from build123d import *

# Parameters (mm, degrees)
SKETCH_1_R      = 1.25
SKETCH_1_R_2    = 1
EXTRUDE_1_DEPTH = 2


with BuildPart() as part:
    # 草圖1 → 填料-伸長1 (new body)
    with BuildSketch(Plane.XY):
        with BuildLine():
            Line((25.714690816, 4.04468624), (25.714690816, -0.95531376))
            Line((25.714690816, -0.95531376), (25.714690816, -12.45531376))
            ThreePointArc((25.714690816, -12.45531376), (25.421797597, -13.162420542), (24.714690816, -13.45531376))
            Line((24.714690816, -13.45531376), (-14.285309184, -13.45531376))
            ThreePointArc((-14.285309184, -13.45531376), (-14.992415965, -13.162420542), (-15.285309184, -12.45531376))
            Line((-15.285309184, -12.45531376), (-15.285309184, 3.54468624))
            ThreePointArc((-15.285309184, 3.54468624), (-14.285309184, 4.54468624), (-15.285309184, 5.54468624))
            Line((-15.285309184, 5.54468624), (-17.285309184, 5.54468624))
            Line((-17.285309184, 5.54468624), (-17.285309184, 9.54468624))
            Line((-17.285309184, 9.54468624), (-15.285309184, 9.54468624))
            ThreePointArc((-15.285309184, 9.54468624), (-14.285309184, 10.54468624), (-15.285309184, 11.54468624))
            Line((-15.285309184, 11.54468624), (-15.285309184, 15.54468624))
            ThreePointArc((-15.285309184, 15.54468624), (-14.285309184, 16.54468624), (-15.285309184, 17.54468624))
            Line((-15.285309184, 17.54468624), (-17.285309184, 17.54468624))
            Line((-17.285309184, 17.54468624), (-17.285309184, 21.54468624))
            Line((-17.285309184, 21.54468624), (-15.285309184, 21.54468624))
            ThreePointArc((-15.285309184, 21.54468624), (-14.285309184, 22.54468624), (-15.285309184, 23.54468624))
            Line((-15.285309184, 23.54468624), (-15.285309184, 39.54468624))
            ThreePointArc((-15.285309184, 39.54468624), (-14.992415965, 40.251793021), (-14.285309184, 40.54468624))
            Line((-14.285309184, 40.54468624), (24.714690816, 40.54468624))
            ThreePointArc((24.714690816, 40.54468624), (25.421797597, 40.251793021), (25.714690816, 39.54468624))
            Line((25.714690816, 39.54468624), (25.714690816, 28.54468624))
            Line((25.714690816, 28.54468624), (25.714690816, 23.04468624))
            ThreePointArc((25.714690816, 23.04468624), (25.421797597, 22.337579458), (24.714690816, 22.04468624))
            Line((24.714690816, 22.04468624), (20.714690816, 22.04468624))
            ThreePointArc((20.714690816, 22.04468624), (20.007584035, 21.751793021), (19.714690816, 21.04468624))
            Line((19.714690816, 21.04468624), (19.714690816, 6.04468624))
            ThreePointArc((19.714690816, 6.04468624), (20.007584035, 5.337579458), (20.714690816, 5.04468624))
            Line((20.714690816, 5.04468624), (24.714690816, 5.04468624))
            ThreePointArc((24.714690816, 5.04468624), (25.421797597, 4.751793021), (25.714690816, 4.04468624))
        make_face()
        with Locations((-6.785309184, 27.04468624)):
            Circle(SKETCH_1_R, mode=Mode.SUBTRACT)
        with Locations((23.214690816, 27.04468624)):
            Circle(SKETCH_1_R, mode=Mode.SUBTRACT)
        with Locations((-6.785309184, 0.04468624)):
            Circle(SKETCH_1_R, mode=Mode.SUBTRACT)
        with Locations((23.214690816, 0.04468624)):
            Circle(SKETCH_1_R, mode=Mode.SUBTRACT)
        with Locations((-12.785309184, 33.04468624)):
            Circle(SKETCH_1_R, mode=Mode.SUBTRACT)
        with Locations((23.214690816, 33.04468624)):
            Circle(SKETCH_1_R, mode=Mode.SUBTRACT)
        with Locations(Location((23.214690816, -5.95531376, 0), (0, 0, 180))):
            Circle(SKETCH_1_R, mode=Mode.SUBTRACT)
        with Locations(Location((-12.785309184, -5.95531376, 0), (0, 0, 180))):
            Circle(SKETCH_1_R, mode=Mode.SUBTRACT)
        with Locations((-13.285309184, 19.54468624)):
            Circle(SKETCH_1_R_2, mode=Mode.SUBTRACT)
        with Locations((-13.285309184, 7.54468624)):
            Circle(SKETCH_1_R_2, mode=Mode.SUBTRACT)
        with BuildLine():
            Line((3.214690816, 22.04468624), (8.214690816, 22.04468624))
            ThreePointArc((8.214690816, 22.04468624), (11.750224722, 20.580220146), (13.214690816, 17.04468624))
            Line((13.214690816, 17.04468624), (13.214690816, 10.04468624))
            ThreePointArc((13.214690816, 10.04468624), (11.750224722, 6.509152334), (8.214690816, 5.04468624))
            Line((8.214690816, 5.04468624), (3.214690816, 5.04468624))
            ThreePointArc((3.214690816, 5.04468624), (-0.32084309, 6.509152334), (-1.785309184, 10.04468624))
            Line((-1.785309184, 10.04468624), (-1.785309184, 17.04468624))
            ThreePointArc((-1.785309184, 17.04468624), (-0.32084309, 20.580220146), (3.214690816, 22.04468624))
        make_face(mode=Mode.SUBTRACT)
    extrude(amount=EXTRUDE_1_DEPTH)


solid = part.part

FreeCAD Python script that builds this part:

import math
import FreeCAD as App
import Part
import Sketcher

doc = App.newDocument("Part")
body = doc.addObject("PartDesign::Body", "Body")

# Sketch on XY plane
sketch1 = body.newObject("Sketcher::SketchObject", "Sketch")
sketch1.AttachmentSupport = (doc.getObject("XY_Plane"), [""])
sketch1.MapMode = "FlatFace"
sketch1.addGeometry(Part.LineSegment(App.Vector(25.7, -12.5, 0), App.Vector(25.7, 4, 0)), False)
sketch1.addGeometry(Part.ArcOfCircle(Part.Circle(App.Vector(24.7, 4, 0), App.Vector(0, 0, 1), 1), math.radians(0), math.radians(90)), False)
sketch1.addGeometry(Part.LineSegment(App.Vector(24.7, 5, 0), App.Vector(20.7, 5, 0)), False)
sketch1.addGeometry(Part.ArcOfCircle(Part.Circle(App.Vector(20.7, 6, 0), App.Vector(0, 0, 1), 1), math.radians(180), math.radians(270)), False)
sketch1.addGeometry(Part.LineSegment(App.Vector(19.7, 6, 0), App.Vector(19.7, 21, 0)), False)
sketch1.addGeometry(Part.ArcOfCircle(Part.Circle(App.Vector(20.7, 21, 0), App.Vector(0, 0, 1), 1), math.radians(90), math.radians(180)), False)
sketch1.addGeometry(Part.LineSegment(App.Vector(20.7, 22, 0), App.Vector(24.7, 22, 0)), False)
sketch1.addGeometry(Part.ArcOfCircle(Part.Circle(App.Vector(24.7, 23, 0), App.Vector(0, 0, 1), 1), math.radians(-90), math.radians(0)), False)
sketch1.addGeometry(Part.LineSegment(App.Vector(25.7, 23, 0), App.Vector(25.7, 39.5, 0)), False)
sketch1.addGeometry(Part.ArcOfCircle(Part.Circle(App.Vector(24.7, 39.5, 0), App.Vector(0, 0, 1), 1), math.radians(0), math.radians(90)), False)
sketch1.addGeometry(Part.LineSegment(App.Vector(24.7, 40.5, 0), App.Vector(-14.3, 40.5, 0)), False)
sketch1.addGeometry(Part.ArcOfCircle(Part.Circle(App.Vector(-14.3, 39.5, 0), App.Vector(0, 0, 1), 1), math.radians(90), math.radians(180)), False)
sketch1.addGeometry(Part.LineSegment(App.Vector(-15.3, 39.5, 0), App.Vector(-15.3, 23.5, 0)), False)
sketch1.addGeometry(Part.ArcOfCircle(Part.Circle(App.Vector(-15.3, 22.5, 0), App.Vector(0, 0, 1), 1), math.radians(-90), math.radians(90)), False)
sketch1.addGeometry(Part.LineSegment(App.Vector(-15.3, 21.5, 0), App.Vector(-17.3, 21.5, 0)), False)
sketch1.addGeometry(Part.LineSegment(App.Vector(-17.3, 21.5, 0), App.Vector(-17.3, 17.5, 0)), False)
sketch1.addGeometry(Part.LineSegment(App.Vector(-17.3, 17.5, 0), App.Vector(-15.3, 17.5, 0)), False)
sketch1.addGeometry(Part.ArcOfCircle(Part.Circle(App.Vector(-15.3, 16.5, 0), App.Vector(0, 0, 1), 1), math.radians(-90), math.radians(90)), False)
sketch1.addGeometry(Part.LineSegment(App.Vector(-15.3, 15.5, 0), App.Vector(-15.3, 11.5, 0)), False)
sketch1.addGeometry(Part.ArcOfCircle(Part.Circle(App.Vector(-15.3, 10.5, 0), App.Vector(0, 0, 1), 1), math.radians(-90), math.radians(90)), False)
sketch1.addGeometry(Part.LineSegment(App.Vector(-15.3, 9.5, 0), App.Vector(-17.3, 9.5, 0)), False)
sketch1.addGeometry(Part.LineSegment(App.Vector(-17.3, 9.5, 0), App.Vector(-17.3, 5.5, 0)), False)
sketch1.addGeometry(Part.LineSegment(App.Vector(-17.3, 5.5, 0), App.Vector(-15.3, 5.5, 0)), False)
sketch1.addGeometry(Part.ArcOfCircle(Part.Circle(App.Vector(-15.3, 4.5, 0), App.Vector(0, 0, 1), 1), math.radians(-90), math.radians(90)), False)
sketch1.addGeometry(Part.LineSegment(App.Vector(-15.3, 3.5, 0), App.Vector(-15.3, -12.5, 0)), False)
sketch1.addGeometry(Part.ArcOfCircle(Part.Circle(App.Vector(-14.3, -12.5, 0), App.Vector(0, 0, 1), 1), math.radians(180), math.radians(270)), False)
sketch1.addGeometry(Part.LineSegment(App.Vector(-14.3, -13.5, 0), App.Vector(24.7, -13.5, 0)), False)
sketch1.addGeometry(Part.ArcOfCircle(Part.Circle(App.Vector(24.7, -12.5, 0), App.Vector(0, 0, 1), 1), math.radians(-90), math.radians(0)), False)
sketch1.addGeometry(Part.Circle(App.Vector(23.2, -6, 0), App.Vector(0, 0, 1), 1.2), False)
sketch1.addGeometry(Part.Circle(App.Vector(23.2, 0, 0), App.Vector(0, 0, 1), 1.2), False)
sketch1.addGeometry(Part.Circle(App.Vector(-12.8, -6, 0), App.Vector(0, 0, 1), 1.2), False)
sketch1.addGeometry(Part.Circle(App.Vector(-6.8, 0, 0), App.Vector(0, 0, 1), 1.2), False)
sketch1.addGeometry(Part.Circle(App.Vector(-13.3, 7.5, 0), App.Vector(0, 0, 1), 1), False)
sketch1.addGeometry(Part.LineSegment(App.Vector(3.2, 22, 0), App.Vector(8.2, 22, 0)), False)
sketch1.addGeometry(Part.ArcOfCircle(Part.Circle(App.Vector(8.2, 17, 0), App.Vector(0, 0, 1), 5), math.radians(0), math.radians(90)), False)
sketch1.addGeometry(Part.LineSegment(App.Vector(13.2, 17, 0), App.Vector(13.2, 10, 0)), False)
sketch1.addGeometry(Part.ArcOfCircle(Part.Circle(App.Vector(8.2, 10, 0), App.Vector(0, 0, 1), 5), math.radians(-90), math.radians(0)), False)
sketch1.addGeometry(Part.LineSegment(App.Vector(8.2, 5, 0), App.Vector(3.2, 5, 0)), False)
sketch1.addGeometry(Part.ArcOfCircle(Part.Circle(App.Vector(3.2, 10, 0), App.Vector(0, 0, 1), 5), math.radians(180), math.radians(270)), False)
sketch1.addGeometry(Part.LineSegment(App.Vector(-1.8, 10, 0), App.Vector(-1.8, 17, 0)), False)
sketch1.addGeometry(Part.ArcOfCircle(Part.Circle(App.Vector(3.2, 17, 0), App.Vector(0, 0, 1), 5), math.radians(90), math.radians(180)), False)
sketch1.addGeometry(Part.Circle(App.Vector(23.2, 27, 0), App.Vector(0, 0, 1), 1.2), False)
sketch1.addGeometry(Part.Circle(App.Vector(23.2, 33, 0), App.Vector(0, 0, 1), 1.2), False)
sketch1.addGeometry(Part.Circle(App.Vector(-13.3, 19.5, 0), App.Vector(0, 0, 1), 1), False)
sketch1.addGeometry(Part.Circle(App.Vector(-6.8, 27, 0), App.Vector(0, 0, 1), 1.2), False)
sketch1.addGeometry(Part.Circle(App.Vector(-12.8, 33, 0), App.Vector(0, 0, 1), 1.2), False)
sketch1.addConstraint(Sketcher.Constraint("Tangent", 0, 2, 1, 1))
sketch1.addConstraint(Sketcher.Constraint("Tangent", 1, 2, 2, 1))
sketch1.addConstraint(Sketcher.Constraint("Tangent", 2, 2, 3, 2))
sketch1.addConstraint(Sketcher.Constraint("Tangent", 3, 1, 4, 1))
sketch1.addConstraint(Sketcher.Constraint("Tangent", 4, 2, 5, 2))
sketch1.addConstraint(Sketcher.Constraint("Tangent", 5, 1, 6, 1))
sketch1.addConstraint(Sketcher.Constraint("Tangent", 6, 2, 7, 1))
sketch1.addConstraint(Sketcher.Constraint("Tangent", 7, 2, 8, 1))
sketch1.addConstraint(Sketcher.Constraint("Tangent", 8, 2, 9, 1))
sketch1.addConstraint(Sketcher.Constraint("Tangent", 9, 2, 10, 1))
sketch1.addConstraint(Sketcher.Constraint("Tangent", 10, 2, 11, 1))
sketch1.addConstraint(Sketcher.Constraint("Tangent", 11, 2, 12, 1))
sketch1.addConstraint(Sketcher.Constraint("Coincident", 12, 2, 13, 2))
sketch1.addConstraint(Sketcher.Constraint("Tangent", 13, 1, 14, 1))
sketch1.addConstraint(Sketcher.Constraint("Coincident", 14, 2, 15, 1))
sketch1.addConstraint(Sketcher.Constraint("Coincident", 15, 2, 16, 1))
sketch1.addConstraint(Sketcher.Constraint("Tangent", 16, 2, 17, 2))
sketch1.addConstraint(Sketcher.Constraint("Coincident", 17, 1, 18, 1))
sketch1.addConstraint(Sketcher.Constraint("Coincident", 18, 2, 19, 2))
sketch1.addConstraint(Sketcher.Constraint("Tangent", 19, 1, 20, 1))
sketch1.addConstraint(Sketcher.Constraint("Coincident", 20, 2, 21, 1))
sketch1.addConstraint(Sketcher.Constraint("Coincident", 21, 2, 22, 1))
sketch1.addConstraint(Sketcher.Constraint("Tangent", 22, 2, 23, 2))
sketch1.addConstraint(Sketcher.Constraint("Coincident", 23, 1, 24, 1))
sketch1.addConstraint(Sketcher.Constraint("Tangent", 24, 2, 25, 1))
sketch1.addConstraint(Sketcher.Constraint("Tangent", 25, 2, 26, 1))
sketch1.addConstraint(Sketcher.Constraint("Tangent", 26, 2, 27, 1))
sketch1.addConstraint(Sketcher.Constraint("Tangent", 27, 2, 0, 1))
sketch1.addConstraint(Sketcher.Constraint("Tangent", 33, 2, 34, 2))
sketch1.addConstraint(Sketcher.Constraint("Tangent", 34, 1, 35, 1))
sketch1.addConstraint(Sketcher.Constraint("Tangent", 35, 2, 36, 2))
sketch1.addConstraint(Sketcher.Constraint("Tangent", 36, 1, 37, 1))
sketch1.addConstraint(Sketcher.Constraint("Tangent", 37, 2, 38, 2))
sketch1.addConstraint(Sketcher.Constraint("Tangent", 38, 1, 39, 1))
sketch1.addConstraint(Sketcher.Constraint("Tangent", 39, 2, 40, 2))
sketch1.addConstraint(Sketcher.Constraint("Tangent", 40, 1, 33, 1))
sketch1.addConstraint(Sketcher.Constraint("Vertical", 0))
sketch1.addConstraint(Sketcher.Constraint("Horizontal", 2))
sketch1.addConstraint(Sketcher.Constraint("Vertical", 4))
sketch1.addConstraint(Sketcher.Constraint("Horizontal", 6))
sketch1.addConstraint(Sketcher.Constraint("Vertical", 8))
sketch1.addConstraint(Sketcher.Constraint("Horizontal", 10))
sketch1.addConstraint(Sketcher.Constraint("Vertical", 12))
sketch1.addConstraint(Sketcher.Constraint("Horizontal", 14))
sketch1.addConstraint(Sketcher.Constraint("Vertical", 15))
sketch1.addConstraint(Sketcher.Constraint("Horizontal", 16))
sketch1.addConstraint(Sketcher.Constraint("Vertical", 18))
sketch1.addConstraint(Sketcher.Constraint("Horizontal", 20))
sketch1.addConstraint(Sketcher.Constraint("Vertical", 21))
sketch1.addConstraint(Sketcher.Constraint("Horizontal", 22))
sketch1.addConstraint(Sketcher.Constraint("Vertical", 24))
sketch1.addConstraint(Sketcher.Constraint("Horizontal", 26))
sketch1.addConstraint(Sketcher.Constraint("Horizontal", 33))
sketch1.addConstraint(Sketcher.Constraint("Vertical", 35))
sketch1.addConstraint(Sketcher.Constraint("Horizontal", 37))
sketch1.addConstraint(Sketcher.Constraint("Vertical", 39))
sketch1.addConstraint(Sketcher.Constraint("Equal", 1, 3))
sketch1.addConstraint(Sketcher.Constraint("Equal", 3, 5))
sketch1.addConstraint(Sketcher.Constraint("Equal", 5, 7))
sketch1.addConstraint(Sketcher.Constraint("Equal", 7, 9))
sketch1.addConstraint(Sketcher.Constraint("Equal", 9, 11))
sketch1.addConstraint(Sketcher.Constraint("Equal", 11, 13))
sketch1.addConstraint(Sketcher.Constraint("Equal", 13, 17))
sketch1.addConstraint(Sketcher.Constraint("Equal", 17, 19))
sketch1.addConstraint(Sketcher.Constraint("Equal", 19, 23))
sketch1.addConstraint(Sketcher.Constraint("Equal", 23, 25))
sketch1.addConstraint(Sketcher.Constraint("Equal", 25, 27))
sketch1.addConstraint(Sketcher.Constraint("Equal", 28, 29))
sketch1.addConstraint(Sketcher.Constraint("Equal", 29, 30))
sketch1.addConstraint(Sketcher.Constraint("Equal", 30, 31))
sketch1.addConstraint(Sketcher.Constraint("Equal", 27, 32))
sketch1.addConstraint(Sketcher.Constraint("Equal", 34, 36))
sketch1.addConstraint(Sketcher.Constraint("Equal", 36, 38))
sketch1.addConstraint(Sketcher.Constraint("Equal", 38, 40))
sketch1.addConstraint(Sketcher.Constraint("Equal", 31, 41))
sketch1.addConstraint(Sketcher.Constraint("Equal", 41, 42))
sketch1.addConstraint(Sketcher.Constraint("Equal", 32, 43))
sketch1.addConstraint(Sketcher.Constraint("Equal", 42, 44))
sketch1.addConstraint(Sketcher.Constraint("Equal", 44, 45))
sketch1.addConstraint(Sketcher.Constraint("Horizontal", 28, 3, 30, 3))
sketch1.addConstraint(Sketcher.Constraint("Horizontal", 29, 3, 31, 3))
sketch1.addConstraint(Sketcher.Constraint("Horizontal", 41, 3, 44, 3))
sketch1.addConstraint(Sketcher.Constraint("Horizontal", 42, 3, 45, 3))
sketch1.addConstraint(Sketcher.Constraint("Horizontal", 6, 2, 33, 2))
sketch1.addConstraint(Sketcher.Constraint("Horizontal", 2, 2, 36, 1))
sketch1.addConstraint(Sketcher.Constraint("Vertical", 1, 3, 7, 3))
sketch1.addConstraint(Sketcher.Constraint("Vertical", 13, 3, 17, 3))
sketch1.addConstraint(Sketcher.Constraint("Vertical", 17, 3, 19, 3))
sketch1.addConstraint(Sketcher.Constraint("Vertical", 19, 3, 23, 3))
sketch1.addConstraint(Sketcher.Constraint("Vertical", 11, 3, 25, 3))
sketch1.addConstraint(Sketcher.Constraint("Vertical", 28, 3, 29, 3))
sketch1.addConstraint(Sketcher.Constraint("Vertical", 29, 3, 41, 3))
sketch1.addConstraint(Sketcher.Constraint("Vertical", 41, 3, 42, 3))
sketch1.addConstraint(Sketcher.Constraint("Vertical", 32, 3, 43, 3))
sketch1.addConstraint(Sketcher.Constraint("Vertical", 31, 3, 44, 3))
sketch1.addConstraint(Sketcher.Constraint("Vertical", 30, 3, 45, 3))
sketch1.addConstraint(Sketcher.Constraint("Vertical", 23, 3, 11, 2))
sketch1.addConstraint(Sketcher.Constraint("Vertical", 16, 2, 17, 1))
sketch1.addConstraint(Sketcher.Constraint("Vertical", 15, 2, 20, 2))
sketch1.addConstraint(Sketcher.Constraint("Equal", 0, 8))
sketch1.addConstraint(Sketcher.Constraint("Equal", 6, 15))
sketch1.addConstraint(Sketcher.Constraint("Equal", 15, 18))
sketch1.addConstraint(Sketcher.Constraint("Equal", 18, 21))
sketch1.addConstraint(Sketcher.Constraint("Equal", 12, 24))
sketch1.addConstraint(Sketcher.Constraint("Diameter", 32, 2.0))
sketch1.addConstraint(Sketcher.Constraint("Radius", 34, 5.0))
sketch1.addConstraint(Sketcher.Constraint("Diameter", 28, 2.5))
sketch1.addConstraint(Sketcher.Constraint("DistanceX", 2, 2, 2, 1, 4.0))
sketch1.addConstraint(Sketcher.Constraint("DistanceX", 10, 2, 10, 1, 39.0))
sketch1.addConstraint(Sketcher.Constraint("DistanceX", 14, 2, 14, 1, 2.0))
sketch1.addConstraint(Sketcher.Constraint("DistanceX", 33, 1, 33, 2, 5.0))
sketch1.addConstraint(Sketcher.Constraint("DistanceY", 4, 1, 4, 2, 15.0))
sketch1.addConstraint(Sketcher.Constraint("DistanceY", 12, 2, 12, 1, 16.0))
sketch1.addConstraint(Sketcher.Constraint("DistanceX", -1, 1, 1, 3, 24.714691))
sketch1.addConstraint(Sketcher.Constraint("DistanceX", -1, 1, 28, 3, 23.214691))
sketch1.addConstraint(Sketcher.Constraint("DistanceX", 30, 3, -1, 1, 12.785309))
sketch1.addConstraint(Sketcher.Constraint("DistanceX", 31, 3, -1, 1, 6.785309))
sketch1.addConstraint(Sketcher.Constraint("DistanceX", 32, 3, -1, 1, 13.285309))
sketch1.addConstraint(Sketcher.Constraint("DistanceX", -1, 1, 34, 3, 8.214691))
sketch1.addConstraint(Sketcher.Constraint("DistanceY", -1, 1, 1, 3, 4.044686))
sketch1.addConstraint(Sketcher.Constraint("DistanceY", 28, 3, -1, 1, 5.955314))
sketch1.addConstraint(Sketcher.Constraint("DistanceY", -1, 1, 29, 3, 0.044686))
sketch1.addConstraint(Sketcher.Constraint("DistanceY", -1, 1, 32, 3, 7.544686))
sketch1.addConstraint(Sketcher.Constraint("DistanceY", -1, 1, 41, 3, 27.044686))
sketch1.addConstraint(Sketcher.Constraint("DistanceY", -1, 1, 42, 3, 33.044686))
sketch1.addConstraint(Sketcher.Constraint("DistanceY", -1, 1, 43, 3, 19.544686))
pad1 = body.newObject("PartDesign::Pad", "Pad")
pad1.Profile = sketch1
pad1.Length = 2

doc.recompute()
